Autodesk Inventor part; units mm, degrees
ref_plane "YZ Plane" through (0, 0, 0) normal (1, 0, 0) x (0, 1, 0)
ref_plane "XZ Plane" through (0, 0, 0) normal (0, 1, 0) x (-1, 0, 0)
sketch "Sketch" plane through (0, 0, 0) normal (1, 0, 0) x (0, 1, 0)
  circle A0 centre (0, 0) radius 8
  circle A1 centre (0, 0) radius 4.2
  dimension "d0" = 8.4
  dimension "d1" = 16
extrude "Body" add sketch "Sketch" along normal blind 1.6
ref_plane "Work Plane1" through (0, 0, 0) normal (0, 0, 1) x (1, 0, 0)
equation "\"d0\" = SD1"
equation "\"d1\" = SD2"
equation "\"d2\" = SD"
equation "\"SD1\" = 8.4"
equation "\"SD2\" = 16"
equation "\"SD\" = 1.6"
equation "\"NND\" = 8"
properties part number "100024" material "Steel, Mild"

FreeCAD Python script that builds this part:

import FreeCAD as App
import Part
import Sketcher

V = App.Vector
Q = App.Units.Quantity

doc = App.newDocument("Part")
body = doc.addObject("PartDesign::Body", "Body")

sketch1 = body.newObject("Sketcher::SketchObject", "Sketch")
sketch1.AttachmentSupport = (doc.getObject("YZ_Plane"), [""])
sketch1.MapMode = "FlatFace"
sketch1.addGeometry([
    Part.Circle(V(0, 0, 0), V(0, 0, 1), 8),
    Part.Circle(V(0, 0, 0), V(0, 0, 1), 4.2),
], False)
sketch1.addConstraint([
    Sketcher.Constraint("Coincident", 0, 3, -1, 1),
    Sketcher.Constraint("Coincident", 1, 3, -1, 1),
    Sketcher.Constraint("Diameter", 0, Q("16 mm")),
    Sketcher.Constraint("Diameter", 1, Q("8.4 mm")),
])
pad1 = body.newObject("PartDesign::Pad", "Pad")
pad1.Profile = sketch1
pad1.Length = 1.6

doc.recompute()
